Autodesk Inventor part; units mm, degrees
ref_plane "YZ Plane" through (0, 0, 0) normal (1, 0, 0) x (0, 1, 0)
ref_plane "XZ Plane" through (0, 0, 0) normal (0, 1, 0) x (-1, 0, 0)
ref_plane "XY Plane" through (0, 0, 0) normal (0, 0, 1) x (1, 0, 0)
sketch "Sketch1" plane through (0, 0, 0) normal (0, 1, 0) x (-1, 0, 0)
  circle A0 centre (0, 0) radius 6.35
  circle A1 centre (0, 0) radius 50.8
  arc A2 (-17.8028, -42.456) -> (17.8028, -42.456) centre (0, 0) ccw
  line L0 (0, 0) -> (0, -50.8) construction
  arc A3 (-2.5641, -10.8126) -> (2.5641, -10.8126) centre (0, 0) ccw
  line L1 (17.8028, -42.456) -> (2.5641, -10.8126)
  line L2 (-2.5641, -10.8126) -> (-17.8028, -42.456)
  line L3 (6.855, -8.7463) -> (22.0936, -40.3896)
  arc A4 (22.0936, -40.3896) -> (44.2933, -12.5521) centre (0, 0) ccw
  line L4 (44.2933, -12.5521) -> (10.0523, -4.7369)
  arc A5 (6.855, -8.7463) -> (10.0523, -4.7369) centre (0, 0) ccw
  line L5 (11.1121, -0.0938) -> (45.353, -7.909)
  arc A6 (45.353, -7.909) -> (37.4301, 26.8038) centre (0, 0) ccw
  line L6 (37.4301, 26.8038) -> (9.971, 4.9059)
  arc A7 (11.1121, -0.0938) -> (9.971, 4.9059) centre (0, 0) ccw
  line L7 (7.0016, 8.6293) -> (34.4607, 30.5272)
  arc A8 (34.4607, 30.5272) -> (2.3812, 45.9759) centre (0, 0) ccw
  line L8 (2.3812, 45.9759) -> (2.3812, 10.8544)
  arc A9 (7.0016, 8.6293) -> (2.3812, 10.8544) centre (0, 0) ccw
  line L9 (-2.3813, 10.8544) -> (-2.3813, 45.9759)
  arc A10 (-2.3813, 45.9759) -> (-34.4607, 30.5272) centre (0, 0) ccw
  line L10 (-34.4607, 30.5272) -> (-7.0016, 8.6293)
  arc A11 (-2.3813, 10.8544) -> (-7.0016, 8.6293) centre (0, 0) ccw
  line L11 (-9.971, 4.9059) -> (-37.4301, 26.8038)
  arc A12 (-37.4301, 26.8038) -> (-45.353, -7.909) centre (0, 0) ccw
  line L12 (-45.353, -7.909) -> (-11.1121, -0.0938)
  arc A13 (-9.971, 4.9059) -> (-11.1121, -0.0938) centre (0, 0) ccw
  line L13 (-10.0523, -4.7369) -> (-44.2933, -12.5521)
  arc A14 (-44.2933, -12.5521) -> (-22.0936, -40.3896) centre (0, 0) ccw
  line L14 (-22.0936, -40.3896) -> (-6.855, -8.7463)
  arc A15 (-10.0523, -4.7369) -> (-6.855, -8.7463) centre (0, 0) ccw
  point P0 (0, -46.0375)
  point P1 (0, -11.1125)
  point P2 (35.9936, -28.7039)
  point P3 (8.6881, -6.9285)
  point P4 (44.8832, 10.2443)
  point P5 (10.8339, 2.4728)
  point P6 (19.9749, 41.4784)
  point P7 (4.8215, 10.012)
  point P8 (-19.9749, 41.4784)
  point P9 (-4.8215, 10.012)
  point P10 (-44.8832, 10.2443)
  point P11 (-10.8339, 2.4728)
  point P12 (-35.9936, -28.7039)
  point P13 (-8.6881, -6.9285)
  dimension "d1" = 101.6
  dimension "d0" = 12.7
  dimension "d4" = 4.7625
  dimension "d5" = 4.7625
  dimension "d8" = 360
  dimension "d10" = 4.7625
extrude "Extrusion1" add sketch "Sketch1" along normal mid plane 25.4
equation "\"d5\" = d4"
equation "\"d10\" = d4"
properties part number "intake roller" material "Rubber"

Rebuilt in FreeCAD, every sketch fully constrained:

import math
import FreeCAD as App
import Part
import Sketcher
Q = App.Units.Quantity

doc = App.newDocument("Part")
body = doc.addObject("PartDesign::Body", "Body")

sketch1 = body.newObject("Sketcher::SketchObject", "Sketch")
sketch1.AttachmentSupport = (doc.getObject("XZ_Plane"), [""])
sketch1.MapMode = "FlatFace"
sketch1.addGeometry([
    Part.Circle(App.Vector(0, 0, 0), App.Vector(0, 0, 1), 50.8),
    Part.ArcOfCircle(Part.Circle(App.Vector(0, 0, 0), App.Vector(0, 0, 1), 46.037502), math.radians(-112.749451), math.radians(-67.250549)),
    Part.LineSegment(App.Vector(17.8028, -42.456, 0), App.Vector(2.5641, -10.8126, 0)),
    Part.ArcOfCircle(Part.Circle(App.Vector(0, 0, 0), App.Vector(0, 0, 1), 11.112467), math.radians(-103.340692), math.radians(-76.659308)),
    Part.LineSegment(App.Vector(-2.5641, -10.8126, 0), App.Vector(-17.8028, -42.456, 0)),
    Part.LineSegment(App.Vector(44.2933, -12.5521, 0), App.Vector(10.0523, -4.7369, 0)),
    Part.ArcOfCircle(Part.Circle(App.Vector(-0.001306, 0.000813, 0), App.Vector(0, 0, 1), 11.113996), math.radians(-51.909359), math.radians(-25.231929)),
    Part.LineSegment(App.Vector(6.855, -8.7463, 0), App.Vector(22.0936, -40.3896, 0)),
    Part.ArcOfCircle(Part.Circle(App.Vector(0, 0, 0), App.Vector(0, 0, 1), 46.037451), math.radians(-61.320807), math.radians(-15.821986)),
    Part.Circle(App.Vector(0, 0, 0), App.Vector(0, 0, 1), 6.35),
    Part.LineSegment(App.Vector(-22.0936, -40.3896, 0), App.Vector(-6.855, -8.7463, 0)),
    Part.ArcOfCircle(Part.Circle(App.Vector(-0.001083, -0.001092, 0), App.Vector(0, 0, 1), 11.111024), math.radians(-154.771704), math.radians(-128.087008)),
    Part.LineSegment(App.Vector(-10.0523, -4.7369, 0), App.Vector(-44.2933, -12.5521, 0)),
    Part.ArcOfCircle(Part.Circle(App.Vector(0, 0, 0), App.Vector(0, 0, 1), 46.037551), math.radians(-164.178014), math.radians(-118.679193)),
    Part.LineSegment(App.Vector(37.4301, 26.8038, 0), App.Vector(9.971, 4.9059, 0)),
    Part.ArcOfCircle(Part.Circle(App.Vector(0, 0, 0), App.Vector(0, 0, 1), 11.112467), math.radians(-0.483636), math.radians(26.197963)),
    Part.LineSegment(App.Vector(11.1121, -0.0938, 0), App.Vector(45.353, -7.909, 0)),
    Part.ArcOfCircle(Part.Circle(App.Vector(0, 0, 0), App.Vector(0, 0, 1), 46.037451), math.radians(-9.892196), math.radians(35.606558)),
    Part.LineSegment(App.Vector(2.3813, 45.9759, 0), App.Vector(2.3813, 10.8544, 0)),
    Part.ArcOfCircle(Part.Circle(App.Vector(0.000375, 0.001085, 0), App.Vector(0, 0, 1), 11.111402), math.radians(50.942956), math.radians(77.626846)),
    Part.LineSegment(App.Vector(7.0016, 8.6293, 0), App.Vector(34.4607, 30.5272, 0)),
    Part.ArcOfCircle(Part.Circle(App.Vector(0, 0, 0), App.Vector(0, 0, 1), 46.037451), math.radians(41.536304), math.radians(87.035042)),
    Part.LineSegment(App.Vector(-45.353, -7.909, 0), App.Vector(-11.1121, -0.0938, 0)),
    Part.ArcOfCircle(Part.Circle(App.Vector(0, 0, 0), App.Vector(0, 0, 1), 11.112551), math.radians(153.802037), math.radians(180.483636)),
    Part.LineSegment(App.Vector(-9.971, 4.9059, 0), App.Vector(-37.4301, 26.8038, 0)),
    Part.ArcOfCircle(Part.Circle(App.Vector(0, 0, 0), App.Vector(0, 0, 1), 46.037551), math.radians(144.393442), math.radians(189.892196)),
    Part.LineSegment(App.Vector(-34.4607, 30.5272, 0), App.Vector(-7.0016, 8.6293, 0)),
    Part.ArcOfCircle(Part.Circle(App.Vector(0, 0, 0), App.Vector(0, 0, 1), 11.112551), math.radians(102.373338), math.radians(129.055018)),
    Part.LineSegment(App.Vector(-2.3812, 10.8544, 0), App.Vector(-2.3812, 45.9759, 0)),
    Part.ArcOfCircle(Part.Circle(App.Vector(0, 0, 0), App.Vector(0, 0, 1), 46.037551), math.radians(92.964834), math.radians(138.463696)),
], False)
sketch1.addConstraint([
    Sketcher.Constraint("Coincident", 1, 2, 2, 1),
    Sketcher.Constraint("Coincident", 2, 2, 3, 2),
    Sketcher.Constraint("Coincident", 3, 1, 4, 1),
    Sketcher.Constraint("Coincident", 4, 2, 1, 1),
    Sketcher.Constraint("Coincident", 5, 2, 6, 2),
    Sketcher.Constraint("Coincident", 6, 1, 7, 1),
    Sketcher.Constraint("Coincident", 7, 2, 8, 1),
    Sketcher.Constraint("Coincident", 8, 2, 5, 1),
    Sketcher.Constraint("Coincident", 10, 2, 11, 2),
    Sketcher.Constraint("Coincident", 11, 1, 12, 1),
    Sketcher.Constraint("Coincident", 12, 2, 13, 1),
    Sketcher.Constraint("Coincident", 13, 2, 10, 1),
    Sketcher.Constraint("Coincident", 14, 2, 15, 2),
    Sketcher.Constraint("Coincident", 15, 1, 16, 1),
    Sketcher.Constraint("Coincident", 16, 2, 17, 1),
    Sketcher.Constraint("Coincident", 17, 2, 14, 1),
    Sketcher.Constraint("Coincident", 18, 2, 19, 2),
    Sketcher.Constraint("Coincident", 19, 1, 20, 1),
    Sketcher.Constraint("Coincident", 20, 2, 21, 1),
    Sketcher.Constraint("Coincident", 21, 2, 18, 1),
    Sketcher.Constraint("Coincident", 22, 2, 23, 2),
    Sketcher.Constraint("Coincident", 23, 1, 24, 1),
    Sketcher.Constraint("Coincident", 24, 2, 25, 1),
    Sketcher.Constraint("Coincident", 25, 2, 22, 1),
    Sketcher.Constraint("Coincident", 26, 2, 27, 2),
    Sketcher.Constraint("Coincident", 27, 1, 28, 1),
    Sketcher.Constraint("Coincident", 28, 2, 29, 1),
    Sketcher.Constraint("Coincident", 29, 2, 26, 1),
    Sketcher.Constraint("Vertical", 18),
    Sketcher.Constraint("Vertical", 28),
    Sketcher.Constraint("Coincident", 0, 3, -1, 1),
    Sketcher.Constraint("Coincident", 1, 3, -1, 1),
    Sketcher.Constraint("Coincident", 3, 3, -1, 1),
    Sketcher.Constraint("Coincident", 8, 3, -1, 1),
    Sketcher.Constraint("Coincident", 9, 3, -1, 1),
    Sketcher.Constraint("Coincident", 13, 3, -1, 1),
    Sketcher.Constraint("Coincident", 15, 3, -1, 1),
    Sketcher.Constraint("Coincident", 17, 3, -1, 1),
    Sketcher.Constraint("Coincident", 21, 3, -1, 1),
    Sketcher.Constraint("Coincident", 23, 3, -1, 1),
    Sketcher.Constraint("Coincident", 25, 3, -1, 1),
    Sketcher.Constraint("Coincident", 27, 3, -1, 1),
    Sketcher.Constraint("Coincident", 29, 3, -1, 1),
    Sketcher.Constraint("Equal", 1, 8),
    Sketcher.Constraint("Equal", 8, 13),
    Sketcher.Constraint("Equal", 3, 15),
    Sketcher.Constraint("Equal", 13, 17),
    Sketcher.Constraint("Equal", 17, 21),
    Sketcher.Constraint("Equal", 15, 23),
    Sketcher.Constraint("Equal", 21, 25),
    Sketcher.Constraint("Equal", 23, 27),
    Sketcher.Constraint("Equal", 25, 29),
    Sketcher.Constraint("Symmetric", 6, 1, 10, 2, -2),
    Sketcher.Constraint("Symmetric", 5, 2, 11, 1, -2),
    Sketcher.Constraint("Symmetric", 19, 1, 26, 2, -2),
    Sketcher.Constraint("Symmetric", 18, 2, 27, 1, -2),
    Sketcher.Constraint("Symmetric", 6, 3, 11, 3, -1),
    Sketcher.Constraint("Parallel", 2, 7),
    Sketcher.Constraint("Parallel", 4, 10),
    Sketcher.Constraint("Parallel", 5, 16),
    Sketcher.Constraint("Parallel", 14, 20),
    Sketcher.Constraint("Parallel", 12, 22),
    Sketcher.Constraint("Parallel", 24, 26),
    Sketcher.Constraint("Horizontal", 2, 2, 3, 1),
    Sketcher.Constraint("Horizontal", 1, 2, 4, 2),
    Sketcher.Constraint("Horizontal", 8, 2, 12, 2),
    Sketcher.Constraint("Horizontal", 15, 1, 22, 2),
    Sketcher.Constraint("Horizontal", 14, 2, 23, 1),
    Sketcher.Constraint("Horizontal", 17, 2, 24, 2),
    Sketcher.Constraint("Equal", 4, 5),
    Sketcher.Constraint("Equal", 5, 7),
    Sketcher.Constraint("Equal", 12, 14),
    Sketcher.Constraint("Equal", 14, 16),
    Sketcher.Constraint("Equal", 16, 20),
    Sketcher.Constraint("Diameter", 0, Q("4 in")),
    Sketcher.Constraint("Diameter", 9, Q("0.5 in")),
    Sketcher.Constraint("Radius", 1, Q("1.8125 in")),
    Sketcher.Constraint("Radius", 3, Q("0.4375 in")),
    Sketcher.Constraint("DistanceX", 27, 1, 18, 2, Q("0.1875 in")),
    Sketcher.Constraint("Radius", 6, 11.114),
    Sketcher.Constraint("Radius", 11, 11.111),
    Sketcher.Constraint("Radius", 19, 11.1114),
    Sketcher.Constraint("DistanceX", 11, 3, 2, 2, Q("0.101 in")),
    Sketcher.Constraint("DistanceX", 7, 2, 8, 2, Q("0.874 in")),
    Sketcher.Constraint("DistanceX", 14, 2, 16, 2, Q("1.393 in")),
    Sketcher.Constraint("DistanceX", 4, 2, -1, 1, Q("0.7009 in")),
])
pad1 = body.newObject("PartDesign::Pad", "Pad")
pad1.Profile = sketch1
pad1.Length = Q("1 in")
pad1.Midplane = True

doc.recompute()
